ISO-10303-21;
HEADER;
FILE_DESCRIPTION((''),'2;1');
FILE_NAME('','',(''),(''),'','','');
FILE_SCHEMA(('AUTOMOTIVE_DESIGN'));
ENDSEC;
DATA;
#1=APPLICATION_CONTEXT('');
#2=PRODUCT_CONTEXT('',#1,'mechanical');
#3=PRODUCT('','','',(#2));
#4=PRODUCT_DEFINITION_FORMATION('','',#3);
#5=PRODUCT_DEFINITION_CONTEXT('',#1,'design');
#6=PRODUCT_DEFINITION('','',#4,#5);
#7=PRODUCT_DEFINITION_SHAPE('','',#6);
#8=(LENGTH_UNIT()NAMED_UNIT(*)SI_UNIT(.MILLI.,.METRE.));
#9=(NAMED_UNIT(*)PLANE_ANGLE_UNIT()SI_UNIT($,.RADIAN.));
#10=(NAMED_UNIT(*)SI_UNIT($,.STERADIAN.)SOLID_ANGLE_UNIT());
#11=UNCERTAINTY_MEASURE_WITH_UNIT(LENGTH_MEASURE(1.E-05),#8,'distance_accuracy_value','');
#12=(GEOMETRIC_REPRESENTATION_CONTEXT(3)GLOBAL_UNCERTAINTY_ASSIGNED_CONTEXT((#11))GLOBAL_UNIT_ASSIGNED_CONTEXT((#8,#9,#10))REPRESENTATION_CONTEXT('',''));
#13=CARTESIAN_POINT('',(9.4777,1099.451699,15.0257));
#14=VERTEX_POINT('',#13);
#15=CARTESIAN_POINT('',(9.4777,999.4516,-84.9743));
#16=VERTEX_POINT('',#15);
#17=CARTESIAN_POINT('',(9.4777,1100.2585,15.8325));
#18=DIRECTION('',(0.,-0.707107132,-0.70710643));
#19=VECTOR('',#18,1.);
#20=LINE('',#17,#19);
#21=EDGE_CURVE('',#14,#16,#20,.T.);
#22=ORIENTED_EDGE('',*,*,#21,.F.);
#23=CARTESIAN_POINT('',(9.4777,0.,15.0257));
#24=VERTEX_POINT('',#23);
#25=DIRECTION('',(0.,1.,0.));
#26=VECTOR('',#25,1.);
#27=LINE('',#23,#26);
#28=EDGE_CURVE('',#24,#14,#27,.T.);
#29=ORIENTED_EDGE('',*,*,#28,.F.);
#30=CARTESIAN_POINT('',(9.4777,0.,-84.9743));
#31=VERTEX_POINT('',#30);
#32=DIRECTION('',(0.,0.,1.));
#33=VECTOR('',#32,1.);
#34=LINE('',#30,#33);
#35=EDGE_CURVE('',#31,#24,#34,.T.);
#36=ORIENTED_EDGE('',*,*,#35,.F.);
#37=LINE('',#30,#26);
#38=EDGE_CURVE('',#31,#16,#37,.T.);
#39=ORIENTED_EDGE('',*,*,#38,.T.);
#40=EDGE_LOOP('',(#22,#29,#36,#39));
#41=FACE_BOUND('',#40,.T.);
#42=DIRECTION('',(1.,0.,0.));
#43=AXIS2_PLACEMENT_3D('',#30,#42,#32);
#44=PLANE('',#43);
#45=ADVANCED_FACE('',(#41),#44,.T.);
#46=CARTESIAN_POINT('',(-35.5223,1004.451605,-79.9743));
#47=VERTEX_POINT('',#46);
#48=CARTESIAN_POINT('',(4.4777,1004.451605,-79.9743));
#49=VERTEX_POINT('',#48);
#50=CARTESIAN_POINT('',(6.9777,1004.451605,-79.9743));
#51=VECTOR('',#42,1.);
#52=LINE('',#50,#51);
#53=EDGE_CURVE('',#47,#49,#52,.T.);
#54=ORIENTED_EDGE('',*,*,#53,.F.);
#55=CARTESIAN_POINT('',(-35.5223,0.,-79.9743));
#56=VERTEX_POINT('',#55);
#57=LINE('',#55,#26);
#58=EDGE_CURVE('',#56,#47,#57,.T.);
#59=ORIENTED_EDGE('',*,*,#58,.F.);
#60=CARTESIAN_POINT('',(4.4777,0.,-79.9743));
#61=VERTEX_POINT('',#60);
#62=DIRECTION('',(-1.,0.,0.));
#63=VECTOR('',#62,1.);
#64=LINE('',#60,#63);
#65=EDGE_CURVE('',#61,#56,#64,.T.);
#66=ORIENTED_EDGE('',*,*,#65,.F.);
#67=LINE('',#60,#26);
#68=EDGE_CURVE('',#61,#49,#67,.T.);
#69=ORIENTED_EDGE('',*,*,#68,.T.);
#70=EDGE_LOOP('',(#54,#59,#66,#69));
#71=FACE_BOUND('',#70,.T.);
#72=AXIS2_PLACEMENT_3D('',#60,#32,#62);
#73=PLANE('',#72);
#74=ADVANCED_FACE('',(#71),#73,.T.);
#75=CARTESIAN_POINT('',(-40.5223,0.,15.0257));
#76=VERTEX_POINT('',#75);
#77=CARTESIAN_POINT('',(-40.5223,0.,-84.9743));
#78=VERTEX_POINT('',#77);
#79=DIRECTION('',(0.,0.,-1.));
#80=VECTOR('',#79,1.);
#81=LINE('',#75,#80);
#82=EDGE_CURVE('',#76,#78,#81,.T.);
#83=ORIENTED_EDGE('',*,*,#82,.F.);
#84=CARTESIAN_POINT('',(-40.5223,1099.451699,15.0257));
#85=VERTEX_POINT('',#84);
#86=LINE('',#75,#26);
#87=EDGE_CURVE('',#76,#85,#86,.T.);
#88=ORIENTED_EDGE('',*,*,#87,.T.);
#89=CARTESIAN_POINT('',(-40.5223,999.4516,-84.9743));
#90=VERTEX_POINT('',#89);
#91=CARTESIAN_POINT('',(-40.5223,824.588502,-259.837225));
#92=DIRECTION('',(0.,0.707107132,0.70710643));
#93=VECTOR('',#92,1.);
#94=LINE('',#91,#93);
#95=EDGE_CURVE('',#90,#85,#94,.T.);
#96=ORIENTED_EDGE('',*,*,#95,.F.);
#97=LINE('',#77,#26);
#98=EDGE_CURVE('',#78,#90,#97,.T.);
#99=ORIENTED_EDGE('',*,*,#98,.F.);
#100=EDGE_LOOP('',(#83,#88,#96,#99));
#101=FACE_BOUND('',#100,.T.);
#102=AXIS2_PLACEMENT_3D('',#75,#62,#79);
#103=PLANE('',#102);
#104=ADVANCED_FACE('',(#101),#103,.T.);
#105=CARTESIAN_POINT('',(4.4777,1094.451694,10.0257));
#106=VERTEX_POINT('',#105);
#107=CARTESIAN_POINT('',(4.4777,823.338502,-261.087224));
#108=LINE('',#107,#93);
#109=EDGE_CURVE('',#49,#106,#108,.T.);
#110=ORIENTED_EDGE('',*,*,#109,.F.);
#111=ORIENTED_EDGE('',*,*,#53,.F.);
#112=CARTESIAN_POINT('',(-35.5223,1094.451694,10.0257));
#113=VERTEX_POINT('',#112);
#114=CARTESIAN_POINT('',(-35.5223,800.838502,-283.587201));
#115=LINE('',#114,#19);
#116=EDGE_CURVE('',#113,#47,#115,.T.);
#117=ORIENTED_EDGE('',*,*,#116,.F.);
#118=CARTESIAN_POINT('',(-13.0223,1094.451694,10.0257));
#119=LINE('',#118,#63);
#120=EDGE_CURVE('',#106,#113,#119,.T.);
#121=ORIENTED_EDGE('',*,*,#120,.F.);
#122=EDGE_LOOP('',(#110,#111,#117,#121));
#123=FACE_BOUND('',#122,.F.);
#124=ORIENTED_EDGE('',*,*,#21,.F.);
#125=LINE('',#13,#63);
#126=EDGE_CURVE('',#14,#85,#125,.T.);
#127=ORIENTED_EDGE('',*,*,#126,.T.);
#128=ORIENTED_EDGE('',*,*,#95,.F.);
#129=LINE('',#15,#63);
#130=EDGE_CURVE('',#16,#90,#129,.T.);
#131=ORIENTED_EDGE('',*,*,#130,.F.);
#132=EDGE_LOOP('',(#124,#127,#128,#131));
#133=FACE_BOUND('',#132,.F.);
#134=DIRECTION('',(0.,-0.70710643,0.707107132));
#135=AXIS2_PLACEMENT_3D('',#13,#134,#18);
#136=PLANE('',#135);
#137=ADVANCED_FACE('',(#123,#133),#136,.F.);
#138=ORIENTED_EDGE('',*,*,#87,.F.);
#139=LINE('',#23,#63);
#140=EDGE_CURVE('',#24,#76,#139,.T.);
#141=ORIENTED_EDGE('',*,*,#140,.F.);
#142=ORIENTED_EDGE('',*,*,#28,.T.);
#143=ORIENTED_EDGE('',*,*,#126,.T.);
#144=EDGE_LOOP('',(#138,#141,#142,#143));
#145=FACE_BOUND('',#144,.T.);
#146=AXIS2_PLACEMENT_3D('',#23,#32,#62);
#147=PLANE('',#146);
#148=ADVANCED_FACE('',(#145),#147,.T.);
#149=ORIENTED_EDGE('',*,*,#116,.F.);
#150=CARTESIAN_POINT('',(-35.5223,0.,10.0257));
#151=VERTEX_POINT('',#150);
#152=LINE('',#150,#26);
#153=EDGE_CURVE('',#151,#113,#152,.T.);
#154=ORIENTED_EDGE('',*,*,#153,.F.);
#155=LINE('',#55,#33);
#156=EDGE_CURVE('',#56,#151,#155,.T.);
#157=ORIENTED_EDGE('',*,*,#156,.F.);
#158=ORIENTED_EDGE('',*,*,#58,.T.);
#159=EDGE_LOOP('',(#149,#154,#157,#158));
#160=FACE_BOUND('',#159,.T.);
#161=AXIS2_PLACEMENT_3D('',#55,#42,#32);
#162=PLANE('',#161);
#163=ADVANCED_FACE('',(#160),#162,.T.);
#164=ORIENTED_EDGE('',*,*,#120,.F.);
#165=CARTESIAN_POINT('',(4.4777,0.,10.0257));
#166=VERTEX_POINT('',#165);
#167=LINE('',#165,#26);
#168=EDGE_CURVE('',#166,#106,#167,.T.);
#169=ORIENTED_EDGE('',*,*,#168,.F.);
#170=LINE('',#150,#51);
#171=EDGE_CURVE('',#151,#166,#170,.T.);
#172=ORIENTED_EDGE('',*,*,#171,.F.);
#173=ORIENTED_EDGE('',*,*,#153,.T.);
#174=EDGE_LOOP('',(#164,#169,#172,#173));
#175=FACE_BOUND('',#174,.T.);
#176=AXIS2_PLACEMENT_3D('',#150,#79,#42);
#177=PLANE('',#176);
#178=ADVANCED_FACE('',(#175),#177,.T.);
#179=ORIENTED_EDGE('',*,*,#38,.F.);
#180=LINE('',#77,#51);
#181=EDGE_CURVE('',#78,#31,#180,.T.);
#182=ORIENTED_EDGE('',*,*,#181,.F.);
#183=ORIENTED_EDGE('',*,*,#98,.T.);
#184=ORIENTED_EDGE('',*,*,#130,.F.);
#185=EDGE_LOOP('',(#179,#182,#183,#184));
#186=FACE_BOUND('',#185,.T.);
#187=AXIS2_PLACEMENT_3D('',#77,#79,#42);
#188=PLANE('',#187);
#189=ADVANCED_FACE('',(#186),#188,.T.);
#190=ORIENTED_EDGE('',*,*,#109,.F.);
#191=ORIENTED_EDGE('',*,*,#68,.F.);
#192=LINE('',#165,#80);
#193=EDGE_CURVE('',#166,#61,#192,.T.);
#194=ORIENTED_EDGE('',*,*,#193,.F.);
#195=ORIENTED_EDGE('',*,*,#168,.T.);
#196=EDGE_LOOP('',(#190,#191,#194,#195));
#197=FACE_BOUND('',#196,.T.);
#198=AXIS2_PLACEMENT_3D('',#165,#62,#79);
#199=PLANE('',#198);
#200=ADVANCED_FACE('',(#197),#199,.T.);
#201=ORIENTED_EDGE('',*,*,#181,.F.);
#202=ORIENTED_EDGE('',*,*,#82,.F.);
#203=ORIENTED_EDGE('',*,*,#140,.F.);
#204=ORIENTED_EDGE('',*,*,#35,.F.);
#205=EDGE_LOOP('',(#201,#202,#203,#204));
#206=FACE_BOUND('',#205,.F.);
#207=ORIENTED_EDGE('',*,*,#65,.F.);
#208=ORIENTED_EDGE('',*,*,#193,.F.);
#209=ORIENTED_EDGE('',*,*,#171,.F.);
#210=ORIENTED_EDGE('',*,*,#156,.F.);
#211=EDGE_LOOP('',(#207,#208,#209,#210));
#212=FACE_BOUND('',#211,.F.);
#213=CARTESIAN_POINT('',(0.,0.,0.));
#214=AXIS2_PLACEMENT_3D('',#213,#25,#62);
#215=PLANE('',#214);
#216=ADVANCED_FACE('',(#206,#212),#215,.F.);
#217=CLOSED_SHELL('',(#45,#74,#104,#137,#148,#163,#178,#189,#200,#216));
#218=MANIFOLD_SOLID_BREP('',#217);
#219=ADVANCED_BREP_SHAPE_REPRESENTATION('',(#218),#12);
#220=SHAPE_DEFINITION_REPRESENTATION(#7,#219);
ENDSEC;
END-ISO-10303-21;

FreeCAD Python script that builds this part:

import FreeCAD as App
import Part
import Sketcher

V = App.Vector
Q = App.Units.Quantity

doc = App.newDocument("Part")
body = doc.addObject("PartDesign::Body", "Body")

sketch1 = body.newObject("Sketcher::SketchObject", "Sketch")
sketch1.AttachmentSupport = (doc.getObject("XZ_Plane"), [""])
sketch1.MapMode = "FlatFace"
sketch1.addGeometry([
    Part.LineSegment(V(-40.5223, 15.0257, 0), V(9.4777, 15.0257, 0)),
    Part.LineSegment(V(9.4777, 15.0257, 0), V(9.4777, -84.9743, 0)),
    Part.LineSegment(V(9.4777, -84.9743, 0), V(-40.5223, -84.9743, 0)),
    Part.LineSegment(V(-40.5223, -84.9743, 0), V(-40.5223, 15.0257, 0)),
    Part.LineSegment(V(4.4777, 10.0257, 0), V(-35.5223, 10.0257, 0)),
    Part.LineSegment(V(-35.5223, 10.0257, 0), V(-35.5223, -79.9743, 0)),
    Part.LineSegment(V(-35.5223, -79.9743, 0), V(4.4777, -79.9743, 0)),
    Part.LineSegment(V(4.4777, -79.9743, 0), V(4.4777, 10.0257, 0)),
], False)
sketch1.addConstraint([
    Sketcher.Constraint("Coincident", 0, 2, 1, 1),
    Sketcher.Constraint("Coincident", 1, 2, 2, 1),
    Sketcher.Constraint("Coincident", 2, 2, 3, 1),
    Sketcher.Constraint("Coincident", 3, 2, 0, 1),
    Sketcher.Constraint("Coincident", 4, 2, 5, 1),
    Sketcher.Constraint("Coincident", 5, 2, 6, 1),
    Sketcher.Constraint("Coincident", 6, 2, 7, 1),
    Sketcher.Constraint("Coincident", 7, 2, 4, 1),
    Sketcher.Constraint("Horizontal", 0),
    Sketcher.Constraint("Vertical", 1),
    Sketcher.Constraint("Horizontal", 2),
    Sketcher.Constraint("Vertical", 3),
    Sketcher.Constraint("Horizontal", 4),
    Sketcher.Constraint("Vertical", 5),
    Sketcher.Constraint("Horizontal", 6),
    Sketcher.Constraint("Vertical", 7),
    Sketcher.Constraint("DistanceX", 0, 1, 0, 2, 50.0),
    Sketcher.Constraint("DistanceX", 4, 2, 4, 1, 40.0),
    Sketcher.Constraint("DistanceY", 1, 2, 1, 1, 100.0),
    Sketcher.Constraint("DistanceY", 5, 2, 5, 1, 90.0),
    Sketcher.Constraint("DistanceX", 3, 2, 4, 2, 5.0),
    Sketcher.Constraint("DistanceY", 4, 2, 3, 2, 5.0),
    Sketcher.Constraint("DistanceX", -1, 1, 0, 2, 9.4777),
    Sketcher.Constraint("DistanceY", -1, 1, 0, 2, 15.0257),
])
pad1 = body.newObject("PartDesign::Pad", "Pad")
pad1.Profile = sketch1
pad1.Length = 1100
pad1.Reversed = True

sketch2 = body.newObject("Sketcher::SketchObject", "Sketch001")
sketch2.AttachmentSupport = (doc.getObject("YZ_Plane"), [""])
sketch2.MapMode = "FlatFace"
sketch2.AttachmentOffset = App.Placement(V(0, 0, 9.4777), App.Rotation())
sketch2.addGeometry([
    Part.LineSegment(V(1100, 15.0257, 0), V(1099.451699, 15.0257, 0)),
    Part.LineSegment(V(1099.451699, 15.0257, 0), V(999.4516, -84.9743, 0)),
    Part.LineSegment(V(999.4516, -84.9743, 0), V(1100, -84.9743, 0)),
    Part.LineSegment(V(1100, -84.9743, 0), V(1100, 15.0257, 0)),
], False)
sketch2.addConstraint([
    Sketcher.Constraint("Coincident", 0, 2, 1, 1),
    Sketcher.Constraint("Coincident", 1, 2, 2, 1),
    Sketcher.Constraint("Coincident", 2, 2, 3, 1),
    Sketcher.Constraint("Coincident", 3, 2, 0, 1),
    Sketcher.Constraint("Horizontal", 0),
    Sketcher.Constraint("Horizontal", 2),
    Sketcher.Constraint("Vertical", 3),
    Sketcher.Constraint("DistanceY", 3, 1, 3, 2, 100.0),
    Sketcher.Constraint("Angle", 1, Q("-135 deg")),
    Sketcher.Constraint("DistanceX", -1, 1, 2, 2, 1100.0),
    Sketcher.Constraint("DistanceX", 0, 2, 0, 1, 0.5483),
    Sketcher.Constraint("DistanceY", -1, 1, 0, 2, 15.0257),
])
pocket1 = body.newObject("PartDesign::Pocket", "Pocket")
pocket1.Profile = sketch2
pocket1.Length = 1100

doc.recompute()
